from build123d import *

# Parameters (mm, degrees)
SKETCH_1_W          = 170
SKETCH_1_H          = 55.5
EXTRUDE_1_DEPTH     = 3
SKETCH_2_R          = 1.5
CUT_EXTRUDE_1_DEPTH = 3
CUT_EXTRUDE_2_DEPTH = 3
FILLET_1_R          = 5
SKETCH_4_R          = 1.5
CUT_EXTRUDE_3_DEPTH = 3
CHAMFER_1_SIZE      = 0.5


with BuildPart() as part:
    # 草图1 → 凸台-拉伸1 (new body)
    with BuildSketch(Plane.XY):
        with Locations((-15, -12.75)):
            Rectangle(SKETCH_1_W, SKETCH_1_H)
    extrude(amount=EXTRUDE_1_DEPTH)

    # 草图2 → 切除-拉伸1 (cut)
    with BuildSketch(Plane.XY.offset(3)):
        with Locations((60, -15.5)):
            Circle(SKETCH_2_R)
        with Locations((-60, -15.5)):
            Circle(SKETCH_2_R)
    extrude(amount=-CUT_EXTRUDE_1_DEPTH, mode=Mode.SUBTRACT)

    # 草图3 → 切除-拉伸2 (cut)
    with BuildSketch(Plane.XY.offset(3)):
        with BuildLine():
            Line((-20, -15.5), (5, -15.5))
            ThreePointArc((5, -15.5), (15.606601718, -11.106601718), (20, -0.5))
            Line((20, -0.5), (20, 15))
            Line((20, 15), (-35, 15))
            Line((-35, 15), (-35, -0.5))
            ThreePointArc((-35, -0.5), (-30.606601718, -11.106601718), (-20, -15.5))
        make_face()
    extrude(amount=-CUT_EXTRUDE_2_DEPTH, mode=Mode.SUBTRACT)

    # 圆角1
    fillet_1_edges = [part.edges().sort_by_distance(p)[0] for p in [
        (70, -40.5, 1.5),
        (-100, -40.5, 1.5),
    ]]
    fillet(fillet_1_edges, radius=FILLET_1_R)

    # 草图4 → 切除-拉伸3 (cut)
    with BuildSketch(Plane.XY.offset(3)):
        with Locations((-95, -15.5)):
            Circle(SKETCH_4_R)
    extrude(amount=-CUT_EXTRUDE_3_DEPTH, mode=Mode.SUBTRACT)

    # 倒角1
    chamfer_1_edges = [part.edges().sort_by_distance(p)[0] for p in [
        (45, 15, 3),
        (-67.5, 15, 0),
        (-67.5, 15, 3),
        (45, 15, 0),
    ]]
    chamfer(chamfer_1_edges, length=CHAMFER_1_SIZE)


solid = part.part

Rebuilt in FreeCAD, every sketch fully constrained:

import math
import FreeCAD as App
import Part
import Sketcher
from FreeCAD import Vector
Q = App.Units.Quantity


def edges_at(feature, points):
    """Names of the edges that pass closest to the given points."""
    edges = feature.Shape.Edges
    near = lambda p: min(range(len(edges)), key=lambda i: edges[i].distToShape(Part.Vertex(*p))[0])
    return sorted({f"Edge{near(p) + 1}" for p in points})


def add_polygon(sketch, points):
    """Adds a closed chain of lines whose ends are joined by coincident constraints."""
    first, n = sketch.GeometryCount, len(points)
    for a, b in zip(points, points[1:] + points[:1]):
        sketch.addGeometry(Part.LineSegment(App.Vector(*a, 0), App.Vector(*b, 0)), False)
    for i in range(n):
        sketch.addConstraint(Sketcher.Constraint("Coincident", first + i, 2, first + (i + 1) % n, 1))

doc = App.newDocument("Part")
body = doc.addObject("PartDesign::Body", "Body")

sketch1 = doc.addObject("Sketcher::SketchObject", "Sketch")
body.addObject(sketch1)
sketch1.AttachmentSupport = (doc.XY_Plane, [""])
sketch1.MapMode = "FlatFace"
add_polygon(sketch1, [(-100, 15), (-100, -40), (70, -40), (70, 15)])
sketch1.addConstraint([
    Sketcher.Constraint("Vertical", 0),
    Sketcher.Constraint("Horizontal", 1),
    Sketcher.Constraint("Vertical", 2),
    Sketcher.Constraint("Horizontal", 3),
    Sketcher.Constraint("DistanceX", 1, 1, 1, 2, Q("170 mm")),
    Sketcher.Constraint("DistanceY", 0, 2, 0, 1, Q("55.5 mm")),
    Sketcher.Constraint("DistanceX", 0, 2, -1, 1, Q("100 mm")),
    Sketcher.Constraint("DistanceY", -1, 1, 2, 2, Q("15 mm")),
])
pad1 = doc.addObject("PartDesign::Pad", "Pad")
body.addObject(pad1)
pad1.Profile = sketch1
pad1.Length = 3

sketch2 = doc.addObject("Sketcher::SketchObject", "Sketch001")
body.addObject(sketch2)
sketch2.AttachmentSupport = (doc.XY_Plane, [""])
sketch2.MapMode = "FlatFace"
sketch2.AttachmentOffset = App.Placement(Vector(0, 0, 3), App.Rotation())
sketch2.addGeometry([
    Part.Circle(Vector(60, -15.5, 0), Vector(0, 0, 1), 1.5),
    Part.Circle(Vector(-60, -15.5, 0), Vector(0, 0, 1), 1.5),
], False)
sketch2.addConstraint([
    Sketcher.Constraint("Equal", 0, 1),
    Sketcher.Constraint("Symmetric", 0, 3, 1, 3, -2),
    Sketcher.Constraint("Diameter", 0, Q("3 mm")),
    Sketcher.Constraint("DistanceX", -1, 1, 0, 3, Q("60 mm")),
    Sketcher.Constraint("DistanceY", 0, 3, -1, 1, Q("15.5 mm")),
])
pocket1 = doc.addObject("PartDesign::Pocket", "Pocket")
body.addObject(pocket1)
pocket1.Profile = sketch2
pocket1.Length = 3

sketch3 = doc.addObject("Sketcher::SketchObject", "Sketch002")
body.addObject(sketch3)
sketch3.AttachmentSupport = (doc.XY_Plane, [""])
sketch3.MapMode = "FlatFace"
sketch3.AttachmentOffset = App.Placement(Vector(0, 0, 3), App.Rotation())
sketch3.addGeometry([
    Part.LineSegment(Vector(-20, -16, 0), Vector(5, -16, 0)),
    Part.ArcOfCircle(Part.Circle(Vector(5, -1, 0), Vector(0, 0, 1), 15), math.radians(-90), math.radians(0)),
    Part.LineSegment(Vector(20, 0, 0), Vector(20, 15, 0)),
    Part.LineSegment(Vector(20, 15, 0), Vector(-35, 15, 0)),
    Part.LineSegment(Vector(-35, 15, 0), Vector(-35, 0, 0)),
    Part.ArcOfCircle(Part.Circle(Vector(-20, -1, 0), Vector(0, 0, 1), 15), math.radians(180), math.radians(270)),
], False)
sketch3.addConstraint([
    Sketcher.Constraint("Tangent", 0, 2, 1, 1),
    Sketcher.Constraint("Tangent", 1, 2, 2, 1),
    Sketcher.Constraint("Coincident", 2, 2, 3, 1),
    Sketcher.Constraint("Coincident", 3, 2, 4, 1),
    Sketcher.Constraint("Tangent", 4, 2, 5, 1),
    Sketcher.Constraint("Tangent", 5, 2, 0, 1),
    Sketcher.Constraint("Horizontal", 0),
    Sketcher.Constraint("Vertical", 2),
    Sketcher.Constraint("Horizontal", 3),
    Sketcher.Constraint("Vertical", 4),
    Sketcher.Constraint("Equal", 1, 5),
    Sketcher.Constraint("Radius", 1, Q("15 mm")),
    Sketcher.Constraint("DistanceX", 0, 1, 0, 2, Q("25 mm")),
    Sketcher.Constraint("DistanceY", 2, 1, 2, 2, Q("15.5 mm")),
    Sketcher.Constraint("DistanceX", -1, 1, 1, 3, Q("5 mm")),
    Sketcher.Constraint("DistanceY", -1, 1, 2, 2, Q("15 mm")),
])
pocket2 = doc.addObject("PartDesign::Pocket", "Pocket001")
body.addObject(pocket2)
pocket2.Profile = sketch3
pocket2.Length = 3
doc.recompute()

fillet = doc.addObject("PartDesign::Fillet", "Fillet")
body.addObject(fillet)
fillet.Base = (pocket2, edges_at(pocket2, [(70, -40.5, 1.5), (-100, -40.5, 1.5)]))
fillet.Radius = 5

sketch4 = doc.addObject("Sketcher::SketchObject", "Sketch003")
body.addObject(sketch4)
sketch4.AttachmentSupport = (doc.XY_Plane, [""])
sketch4.MapMode = "FlatFace"
sketch4.AttachmentOffset = App.Placement(Vector(0, 0, 3), App.Rotation())
sketch4.addGeometry(Part.Circle(Vector(-95, -15.5, 0), Vector(0, 0, 1), 1.5), False)
sketch4.addConstraint([
    Sketcher.Constraint("Diameter", 0, Q("3 mm")),
    Sketcher.Constraint("DistanceX", 0, 3, -1, 1, Q("95 mm")),
    Sketcher.Constraint("DistanceY", 0, 3, -1, 1, Q("15.5 mm")),
])
pocket3 = doc.addObject("PartDesign::Pocket", "Pocket002")
body.addObject(pocket3)
pocket3.Profile = sketch4
pocket3.Length = 3
doc.recompute()

chamfer = doc.addObject("PartDesign::Chamfer", "Chamfer")
body.addObject(chamfer)
chamfer.Base = (pocket3, edges_at(pocket3, [
    (45, 15, 3),
    (-67.5, 15, 0),
    (-67.5, 15, 3),
    (45, 15, 0),
]))
chamfer.Size = 0.5

doc.recompute()
